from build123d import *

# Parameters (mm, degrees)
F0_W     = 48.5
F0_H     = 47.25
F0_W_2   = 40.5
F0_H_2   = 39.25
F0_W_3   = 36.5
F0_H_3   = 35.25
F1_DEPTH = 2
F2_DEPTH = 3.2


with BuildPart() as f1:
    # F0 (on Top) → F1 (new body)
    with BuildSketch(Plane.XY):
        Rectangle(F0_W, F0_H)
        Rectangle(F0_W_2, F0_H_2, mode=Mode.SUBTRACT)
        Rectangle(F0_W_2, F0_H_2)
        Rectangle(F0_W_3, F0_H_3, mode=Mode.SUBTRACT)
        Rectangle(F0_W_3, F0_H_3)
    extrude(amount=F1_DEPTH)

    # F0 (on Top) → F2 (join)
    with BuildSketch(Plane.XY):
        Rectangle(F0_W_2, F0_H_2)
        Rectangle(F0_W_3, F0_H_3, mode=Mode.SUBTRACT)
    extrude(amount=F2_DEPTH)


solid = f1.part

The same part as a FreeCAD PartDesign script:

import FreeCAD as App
import Part
import Sketcher

V = App.Vector
Q = App.Units.Quantity


def add_polygon(sketch, points):
    """Adds a closed chain of lines whose ends are joined by coincident constraints."""
    first, n = sketch.GeometryCount, len(points)
    for a, b in zip(points, points[1:] + points[:1]):
        sketch.addGeometry(Part.LineSegment(App.Vector(*a, 0), App.Vector(*b, 0)), False)
    for i in range(n):
        sketch.addConstraint(Sketcher.Constraint("Coincident", first + i, 2, first + (i + 1) % n, 1))

doc = App.newDocument("Part")
body = doc.addObject("PartDesign::Body", "Body")

sketch1 = body.newObject("Sketcher::SketchObject", "Sketch")
sketch1.AttachmentSupport = (doc.getObject("XY_Plane"), [""])
sketch1.MapMode = "FlatFace"
add_polygon(sketch1, [(-24.25, 23.625), (-24.25, -23.625), (24.25, -23.625), (24.25, 23.625)])
sketch1.addConstraint([
    Sketcher.Constraint("Vertical", 0),
    Sketcher.Constraint("Horizontal", 1),
    Sketcher.Constraint("Vertical", 2),
    Sketcher.Constraint("Horizontal", 3),
    Sketcher.Constraint("Symmetric", 0, 2, 2, 2, -1, 1),
    Sketcher.Constraint("DistanceX", 1, 1, 1, 2, Q("48.5 mm")),
    Sketcher.Constraint("DistanceY", 0, 2, 0, 1, Q("47.25 mm")),
])
pad1 = body.newObject("PartDesign::Pad", "Pad")
pad1.Profile = sketch1
pad1.Length = 2

sketch2 = body.newObject("Sketcher::SketchObject", "Sketch001")
sketch2.AttachmentSupport = (doc.getObject("XY_Plane"), [""])
sketch2.MapMode = "FlatFace"
add_polygon(sketch2, [(-20.25, 19.625), (-20.25, -19.625), (20.25, -19.625), (20.25, 19.625)])
add_polygon(sketch2, [(18.25, -17.625), (-18.25, -17.625), (-18.25, 17.625), (18.25, 17.625)])
sketch2.addConstraint([
    Sketcher.Constraint("Vertical", 0),
    Sketcher.Constraint("Horizontal", 1),
    Sketcher.Constraint("Vertical", 2),
    Sketcher.Constraint("Horizontal", 3),
    Sketcher.Constraint("Horizontal", 4),
    Sketcher.Constraint("Vertical", 5),
    Sketcher.Constraint("Horizontal", 6),
    Sketcher.Constraint("Vertical", 7),
    Sketcher.Constraint("Symmetric", 0, 2, 2, 2, -1, 1),
    Sketcher.Constraint("Symmetric", 4, 2, 6, 2, -1, 1),
    Sketcher.Constraint("DistanceX", 1, 1, 1, 2, Q("40.5 mm")),
    Sketcher.Constraint("DistanceX", 4, 2, 4, 1, Q("36.5 mm")),
    Sketcher.Constraint("DistanceY", 0, 2, 4, 2, Q("2 mm")),
    Sketcher.Constraint("DistanceY", 0, 2, 0, 1, Q("39.25 mm")),
])
pad2 = body.newObject("PartDesign::Pad", "Pad001")
pad2.Profile = sketch2
pad2.Length = 3.2

doc.recompute()
